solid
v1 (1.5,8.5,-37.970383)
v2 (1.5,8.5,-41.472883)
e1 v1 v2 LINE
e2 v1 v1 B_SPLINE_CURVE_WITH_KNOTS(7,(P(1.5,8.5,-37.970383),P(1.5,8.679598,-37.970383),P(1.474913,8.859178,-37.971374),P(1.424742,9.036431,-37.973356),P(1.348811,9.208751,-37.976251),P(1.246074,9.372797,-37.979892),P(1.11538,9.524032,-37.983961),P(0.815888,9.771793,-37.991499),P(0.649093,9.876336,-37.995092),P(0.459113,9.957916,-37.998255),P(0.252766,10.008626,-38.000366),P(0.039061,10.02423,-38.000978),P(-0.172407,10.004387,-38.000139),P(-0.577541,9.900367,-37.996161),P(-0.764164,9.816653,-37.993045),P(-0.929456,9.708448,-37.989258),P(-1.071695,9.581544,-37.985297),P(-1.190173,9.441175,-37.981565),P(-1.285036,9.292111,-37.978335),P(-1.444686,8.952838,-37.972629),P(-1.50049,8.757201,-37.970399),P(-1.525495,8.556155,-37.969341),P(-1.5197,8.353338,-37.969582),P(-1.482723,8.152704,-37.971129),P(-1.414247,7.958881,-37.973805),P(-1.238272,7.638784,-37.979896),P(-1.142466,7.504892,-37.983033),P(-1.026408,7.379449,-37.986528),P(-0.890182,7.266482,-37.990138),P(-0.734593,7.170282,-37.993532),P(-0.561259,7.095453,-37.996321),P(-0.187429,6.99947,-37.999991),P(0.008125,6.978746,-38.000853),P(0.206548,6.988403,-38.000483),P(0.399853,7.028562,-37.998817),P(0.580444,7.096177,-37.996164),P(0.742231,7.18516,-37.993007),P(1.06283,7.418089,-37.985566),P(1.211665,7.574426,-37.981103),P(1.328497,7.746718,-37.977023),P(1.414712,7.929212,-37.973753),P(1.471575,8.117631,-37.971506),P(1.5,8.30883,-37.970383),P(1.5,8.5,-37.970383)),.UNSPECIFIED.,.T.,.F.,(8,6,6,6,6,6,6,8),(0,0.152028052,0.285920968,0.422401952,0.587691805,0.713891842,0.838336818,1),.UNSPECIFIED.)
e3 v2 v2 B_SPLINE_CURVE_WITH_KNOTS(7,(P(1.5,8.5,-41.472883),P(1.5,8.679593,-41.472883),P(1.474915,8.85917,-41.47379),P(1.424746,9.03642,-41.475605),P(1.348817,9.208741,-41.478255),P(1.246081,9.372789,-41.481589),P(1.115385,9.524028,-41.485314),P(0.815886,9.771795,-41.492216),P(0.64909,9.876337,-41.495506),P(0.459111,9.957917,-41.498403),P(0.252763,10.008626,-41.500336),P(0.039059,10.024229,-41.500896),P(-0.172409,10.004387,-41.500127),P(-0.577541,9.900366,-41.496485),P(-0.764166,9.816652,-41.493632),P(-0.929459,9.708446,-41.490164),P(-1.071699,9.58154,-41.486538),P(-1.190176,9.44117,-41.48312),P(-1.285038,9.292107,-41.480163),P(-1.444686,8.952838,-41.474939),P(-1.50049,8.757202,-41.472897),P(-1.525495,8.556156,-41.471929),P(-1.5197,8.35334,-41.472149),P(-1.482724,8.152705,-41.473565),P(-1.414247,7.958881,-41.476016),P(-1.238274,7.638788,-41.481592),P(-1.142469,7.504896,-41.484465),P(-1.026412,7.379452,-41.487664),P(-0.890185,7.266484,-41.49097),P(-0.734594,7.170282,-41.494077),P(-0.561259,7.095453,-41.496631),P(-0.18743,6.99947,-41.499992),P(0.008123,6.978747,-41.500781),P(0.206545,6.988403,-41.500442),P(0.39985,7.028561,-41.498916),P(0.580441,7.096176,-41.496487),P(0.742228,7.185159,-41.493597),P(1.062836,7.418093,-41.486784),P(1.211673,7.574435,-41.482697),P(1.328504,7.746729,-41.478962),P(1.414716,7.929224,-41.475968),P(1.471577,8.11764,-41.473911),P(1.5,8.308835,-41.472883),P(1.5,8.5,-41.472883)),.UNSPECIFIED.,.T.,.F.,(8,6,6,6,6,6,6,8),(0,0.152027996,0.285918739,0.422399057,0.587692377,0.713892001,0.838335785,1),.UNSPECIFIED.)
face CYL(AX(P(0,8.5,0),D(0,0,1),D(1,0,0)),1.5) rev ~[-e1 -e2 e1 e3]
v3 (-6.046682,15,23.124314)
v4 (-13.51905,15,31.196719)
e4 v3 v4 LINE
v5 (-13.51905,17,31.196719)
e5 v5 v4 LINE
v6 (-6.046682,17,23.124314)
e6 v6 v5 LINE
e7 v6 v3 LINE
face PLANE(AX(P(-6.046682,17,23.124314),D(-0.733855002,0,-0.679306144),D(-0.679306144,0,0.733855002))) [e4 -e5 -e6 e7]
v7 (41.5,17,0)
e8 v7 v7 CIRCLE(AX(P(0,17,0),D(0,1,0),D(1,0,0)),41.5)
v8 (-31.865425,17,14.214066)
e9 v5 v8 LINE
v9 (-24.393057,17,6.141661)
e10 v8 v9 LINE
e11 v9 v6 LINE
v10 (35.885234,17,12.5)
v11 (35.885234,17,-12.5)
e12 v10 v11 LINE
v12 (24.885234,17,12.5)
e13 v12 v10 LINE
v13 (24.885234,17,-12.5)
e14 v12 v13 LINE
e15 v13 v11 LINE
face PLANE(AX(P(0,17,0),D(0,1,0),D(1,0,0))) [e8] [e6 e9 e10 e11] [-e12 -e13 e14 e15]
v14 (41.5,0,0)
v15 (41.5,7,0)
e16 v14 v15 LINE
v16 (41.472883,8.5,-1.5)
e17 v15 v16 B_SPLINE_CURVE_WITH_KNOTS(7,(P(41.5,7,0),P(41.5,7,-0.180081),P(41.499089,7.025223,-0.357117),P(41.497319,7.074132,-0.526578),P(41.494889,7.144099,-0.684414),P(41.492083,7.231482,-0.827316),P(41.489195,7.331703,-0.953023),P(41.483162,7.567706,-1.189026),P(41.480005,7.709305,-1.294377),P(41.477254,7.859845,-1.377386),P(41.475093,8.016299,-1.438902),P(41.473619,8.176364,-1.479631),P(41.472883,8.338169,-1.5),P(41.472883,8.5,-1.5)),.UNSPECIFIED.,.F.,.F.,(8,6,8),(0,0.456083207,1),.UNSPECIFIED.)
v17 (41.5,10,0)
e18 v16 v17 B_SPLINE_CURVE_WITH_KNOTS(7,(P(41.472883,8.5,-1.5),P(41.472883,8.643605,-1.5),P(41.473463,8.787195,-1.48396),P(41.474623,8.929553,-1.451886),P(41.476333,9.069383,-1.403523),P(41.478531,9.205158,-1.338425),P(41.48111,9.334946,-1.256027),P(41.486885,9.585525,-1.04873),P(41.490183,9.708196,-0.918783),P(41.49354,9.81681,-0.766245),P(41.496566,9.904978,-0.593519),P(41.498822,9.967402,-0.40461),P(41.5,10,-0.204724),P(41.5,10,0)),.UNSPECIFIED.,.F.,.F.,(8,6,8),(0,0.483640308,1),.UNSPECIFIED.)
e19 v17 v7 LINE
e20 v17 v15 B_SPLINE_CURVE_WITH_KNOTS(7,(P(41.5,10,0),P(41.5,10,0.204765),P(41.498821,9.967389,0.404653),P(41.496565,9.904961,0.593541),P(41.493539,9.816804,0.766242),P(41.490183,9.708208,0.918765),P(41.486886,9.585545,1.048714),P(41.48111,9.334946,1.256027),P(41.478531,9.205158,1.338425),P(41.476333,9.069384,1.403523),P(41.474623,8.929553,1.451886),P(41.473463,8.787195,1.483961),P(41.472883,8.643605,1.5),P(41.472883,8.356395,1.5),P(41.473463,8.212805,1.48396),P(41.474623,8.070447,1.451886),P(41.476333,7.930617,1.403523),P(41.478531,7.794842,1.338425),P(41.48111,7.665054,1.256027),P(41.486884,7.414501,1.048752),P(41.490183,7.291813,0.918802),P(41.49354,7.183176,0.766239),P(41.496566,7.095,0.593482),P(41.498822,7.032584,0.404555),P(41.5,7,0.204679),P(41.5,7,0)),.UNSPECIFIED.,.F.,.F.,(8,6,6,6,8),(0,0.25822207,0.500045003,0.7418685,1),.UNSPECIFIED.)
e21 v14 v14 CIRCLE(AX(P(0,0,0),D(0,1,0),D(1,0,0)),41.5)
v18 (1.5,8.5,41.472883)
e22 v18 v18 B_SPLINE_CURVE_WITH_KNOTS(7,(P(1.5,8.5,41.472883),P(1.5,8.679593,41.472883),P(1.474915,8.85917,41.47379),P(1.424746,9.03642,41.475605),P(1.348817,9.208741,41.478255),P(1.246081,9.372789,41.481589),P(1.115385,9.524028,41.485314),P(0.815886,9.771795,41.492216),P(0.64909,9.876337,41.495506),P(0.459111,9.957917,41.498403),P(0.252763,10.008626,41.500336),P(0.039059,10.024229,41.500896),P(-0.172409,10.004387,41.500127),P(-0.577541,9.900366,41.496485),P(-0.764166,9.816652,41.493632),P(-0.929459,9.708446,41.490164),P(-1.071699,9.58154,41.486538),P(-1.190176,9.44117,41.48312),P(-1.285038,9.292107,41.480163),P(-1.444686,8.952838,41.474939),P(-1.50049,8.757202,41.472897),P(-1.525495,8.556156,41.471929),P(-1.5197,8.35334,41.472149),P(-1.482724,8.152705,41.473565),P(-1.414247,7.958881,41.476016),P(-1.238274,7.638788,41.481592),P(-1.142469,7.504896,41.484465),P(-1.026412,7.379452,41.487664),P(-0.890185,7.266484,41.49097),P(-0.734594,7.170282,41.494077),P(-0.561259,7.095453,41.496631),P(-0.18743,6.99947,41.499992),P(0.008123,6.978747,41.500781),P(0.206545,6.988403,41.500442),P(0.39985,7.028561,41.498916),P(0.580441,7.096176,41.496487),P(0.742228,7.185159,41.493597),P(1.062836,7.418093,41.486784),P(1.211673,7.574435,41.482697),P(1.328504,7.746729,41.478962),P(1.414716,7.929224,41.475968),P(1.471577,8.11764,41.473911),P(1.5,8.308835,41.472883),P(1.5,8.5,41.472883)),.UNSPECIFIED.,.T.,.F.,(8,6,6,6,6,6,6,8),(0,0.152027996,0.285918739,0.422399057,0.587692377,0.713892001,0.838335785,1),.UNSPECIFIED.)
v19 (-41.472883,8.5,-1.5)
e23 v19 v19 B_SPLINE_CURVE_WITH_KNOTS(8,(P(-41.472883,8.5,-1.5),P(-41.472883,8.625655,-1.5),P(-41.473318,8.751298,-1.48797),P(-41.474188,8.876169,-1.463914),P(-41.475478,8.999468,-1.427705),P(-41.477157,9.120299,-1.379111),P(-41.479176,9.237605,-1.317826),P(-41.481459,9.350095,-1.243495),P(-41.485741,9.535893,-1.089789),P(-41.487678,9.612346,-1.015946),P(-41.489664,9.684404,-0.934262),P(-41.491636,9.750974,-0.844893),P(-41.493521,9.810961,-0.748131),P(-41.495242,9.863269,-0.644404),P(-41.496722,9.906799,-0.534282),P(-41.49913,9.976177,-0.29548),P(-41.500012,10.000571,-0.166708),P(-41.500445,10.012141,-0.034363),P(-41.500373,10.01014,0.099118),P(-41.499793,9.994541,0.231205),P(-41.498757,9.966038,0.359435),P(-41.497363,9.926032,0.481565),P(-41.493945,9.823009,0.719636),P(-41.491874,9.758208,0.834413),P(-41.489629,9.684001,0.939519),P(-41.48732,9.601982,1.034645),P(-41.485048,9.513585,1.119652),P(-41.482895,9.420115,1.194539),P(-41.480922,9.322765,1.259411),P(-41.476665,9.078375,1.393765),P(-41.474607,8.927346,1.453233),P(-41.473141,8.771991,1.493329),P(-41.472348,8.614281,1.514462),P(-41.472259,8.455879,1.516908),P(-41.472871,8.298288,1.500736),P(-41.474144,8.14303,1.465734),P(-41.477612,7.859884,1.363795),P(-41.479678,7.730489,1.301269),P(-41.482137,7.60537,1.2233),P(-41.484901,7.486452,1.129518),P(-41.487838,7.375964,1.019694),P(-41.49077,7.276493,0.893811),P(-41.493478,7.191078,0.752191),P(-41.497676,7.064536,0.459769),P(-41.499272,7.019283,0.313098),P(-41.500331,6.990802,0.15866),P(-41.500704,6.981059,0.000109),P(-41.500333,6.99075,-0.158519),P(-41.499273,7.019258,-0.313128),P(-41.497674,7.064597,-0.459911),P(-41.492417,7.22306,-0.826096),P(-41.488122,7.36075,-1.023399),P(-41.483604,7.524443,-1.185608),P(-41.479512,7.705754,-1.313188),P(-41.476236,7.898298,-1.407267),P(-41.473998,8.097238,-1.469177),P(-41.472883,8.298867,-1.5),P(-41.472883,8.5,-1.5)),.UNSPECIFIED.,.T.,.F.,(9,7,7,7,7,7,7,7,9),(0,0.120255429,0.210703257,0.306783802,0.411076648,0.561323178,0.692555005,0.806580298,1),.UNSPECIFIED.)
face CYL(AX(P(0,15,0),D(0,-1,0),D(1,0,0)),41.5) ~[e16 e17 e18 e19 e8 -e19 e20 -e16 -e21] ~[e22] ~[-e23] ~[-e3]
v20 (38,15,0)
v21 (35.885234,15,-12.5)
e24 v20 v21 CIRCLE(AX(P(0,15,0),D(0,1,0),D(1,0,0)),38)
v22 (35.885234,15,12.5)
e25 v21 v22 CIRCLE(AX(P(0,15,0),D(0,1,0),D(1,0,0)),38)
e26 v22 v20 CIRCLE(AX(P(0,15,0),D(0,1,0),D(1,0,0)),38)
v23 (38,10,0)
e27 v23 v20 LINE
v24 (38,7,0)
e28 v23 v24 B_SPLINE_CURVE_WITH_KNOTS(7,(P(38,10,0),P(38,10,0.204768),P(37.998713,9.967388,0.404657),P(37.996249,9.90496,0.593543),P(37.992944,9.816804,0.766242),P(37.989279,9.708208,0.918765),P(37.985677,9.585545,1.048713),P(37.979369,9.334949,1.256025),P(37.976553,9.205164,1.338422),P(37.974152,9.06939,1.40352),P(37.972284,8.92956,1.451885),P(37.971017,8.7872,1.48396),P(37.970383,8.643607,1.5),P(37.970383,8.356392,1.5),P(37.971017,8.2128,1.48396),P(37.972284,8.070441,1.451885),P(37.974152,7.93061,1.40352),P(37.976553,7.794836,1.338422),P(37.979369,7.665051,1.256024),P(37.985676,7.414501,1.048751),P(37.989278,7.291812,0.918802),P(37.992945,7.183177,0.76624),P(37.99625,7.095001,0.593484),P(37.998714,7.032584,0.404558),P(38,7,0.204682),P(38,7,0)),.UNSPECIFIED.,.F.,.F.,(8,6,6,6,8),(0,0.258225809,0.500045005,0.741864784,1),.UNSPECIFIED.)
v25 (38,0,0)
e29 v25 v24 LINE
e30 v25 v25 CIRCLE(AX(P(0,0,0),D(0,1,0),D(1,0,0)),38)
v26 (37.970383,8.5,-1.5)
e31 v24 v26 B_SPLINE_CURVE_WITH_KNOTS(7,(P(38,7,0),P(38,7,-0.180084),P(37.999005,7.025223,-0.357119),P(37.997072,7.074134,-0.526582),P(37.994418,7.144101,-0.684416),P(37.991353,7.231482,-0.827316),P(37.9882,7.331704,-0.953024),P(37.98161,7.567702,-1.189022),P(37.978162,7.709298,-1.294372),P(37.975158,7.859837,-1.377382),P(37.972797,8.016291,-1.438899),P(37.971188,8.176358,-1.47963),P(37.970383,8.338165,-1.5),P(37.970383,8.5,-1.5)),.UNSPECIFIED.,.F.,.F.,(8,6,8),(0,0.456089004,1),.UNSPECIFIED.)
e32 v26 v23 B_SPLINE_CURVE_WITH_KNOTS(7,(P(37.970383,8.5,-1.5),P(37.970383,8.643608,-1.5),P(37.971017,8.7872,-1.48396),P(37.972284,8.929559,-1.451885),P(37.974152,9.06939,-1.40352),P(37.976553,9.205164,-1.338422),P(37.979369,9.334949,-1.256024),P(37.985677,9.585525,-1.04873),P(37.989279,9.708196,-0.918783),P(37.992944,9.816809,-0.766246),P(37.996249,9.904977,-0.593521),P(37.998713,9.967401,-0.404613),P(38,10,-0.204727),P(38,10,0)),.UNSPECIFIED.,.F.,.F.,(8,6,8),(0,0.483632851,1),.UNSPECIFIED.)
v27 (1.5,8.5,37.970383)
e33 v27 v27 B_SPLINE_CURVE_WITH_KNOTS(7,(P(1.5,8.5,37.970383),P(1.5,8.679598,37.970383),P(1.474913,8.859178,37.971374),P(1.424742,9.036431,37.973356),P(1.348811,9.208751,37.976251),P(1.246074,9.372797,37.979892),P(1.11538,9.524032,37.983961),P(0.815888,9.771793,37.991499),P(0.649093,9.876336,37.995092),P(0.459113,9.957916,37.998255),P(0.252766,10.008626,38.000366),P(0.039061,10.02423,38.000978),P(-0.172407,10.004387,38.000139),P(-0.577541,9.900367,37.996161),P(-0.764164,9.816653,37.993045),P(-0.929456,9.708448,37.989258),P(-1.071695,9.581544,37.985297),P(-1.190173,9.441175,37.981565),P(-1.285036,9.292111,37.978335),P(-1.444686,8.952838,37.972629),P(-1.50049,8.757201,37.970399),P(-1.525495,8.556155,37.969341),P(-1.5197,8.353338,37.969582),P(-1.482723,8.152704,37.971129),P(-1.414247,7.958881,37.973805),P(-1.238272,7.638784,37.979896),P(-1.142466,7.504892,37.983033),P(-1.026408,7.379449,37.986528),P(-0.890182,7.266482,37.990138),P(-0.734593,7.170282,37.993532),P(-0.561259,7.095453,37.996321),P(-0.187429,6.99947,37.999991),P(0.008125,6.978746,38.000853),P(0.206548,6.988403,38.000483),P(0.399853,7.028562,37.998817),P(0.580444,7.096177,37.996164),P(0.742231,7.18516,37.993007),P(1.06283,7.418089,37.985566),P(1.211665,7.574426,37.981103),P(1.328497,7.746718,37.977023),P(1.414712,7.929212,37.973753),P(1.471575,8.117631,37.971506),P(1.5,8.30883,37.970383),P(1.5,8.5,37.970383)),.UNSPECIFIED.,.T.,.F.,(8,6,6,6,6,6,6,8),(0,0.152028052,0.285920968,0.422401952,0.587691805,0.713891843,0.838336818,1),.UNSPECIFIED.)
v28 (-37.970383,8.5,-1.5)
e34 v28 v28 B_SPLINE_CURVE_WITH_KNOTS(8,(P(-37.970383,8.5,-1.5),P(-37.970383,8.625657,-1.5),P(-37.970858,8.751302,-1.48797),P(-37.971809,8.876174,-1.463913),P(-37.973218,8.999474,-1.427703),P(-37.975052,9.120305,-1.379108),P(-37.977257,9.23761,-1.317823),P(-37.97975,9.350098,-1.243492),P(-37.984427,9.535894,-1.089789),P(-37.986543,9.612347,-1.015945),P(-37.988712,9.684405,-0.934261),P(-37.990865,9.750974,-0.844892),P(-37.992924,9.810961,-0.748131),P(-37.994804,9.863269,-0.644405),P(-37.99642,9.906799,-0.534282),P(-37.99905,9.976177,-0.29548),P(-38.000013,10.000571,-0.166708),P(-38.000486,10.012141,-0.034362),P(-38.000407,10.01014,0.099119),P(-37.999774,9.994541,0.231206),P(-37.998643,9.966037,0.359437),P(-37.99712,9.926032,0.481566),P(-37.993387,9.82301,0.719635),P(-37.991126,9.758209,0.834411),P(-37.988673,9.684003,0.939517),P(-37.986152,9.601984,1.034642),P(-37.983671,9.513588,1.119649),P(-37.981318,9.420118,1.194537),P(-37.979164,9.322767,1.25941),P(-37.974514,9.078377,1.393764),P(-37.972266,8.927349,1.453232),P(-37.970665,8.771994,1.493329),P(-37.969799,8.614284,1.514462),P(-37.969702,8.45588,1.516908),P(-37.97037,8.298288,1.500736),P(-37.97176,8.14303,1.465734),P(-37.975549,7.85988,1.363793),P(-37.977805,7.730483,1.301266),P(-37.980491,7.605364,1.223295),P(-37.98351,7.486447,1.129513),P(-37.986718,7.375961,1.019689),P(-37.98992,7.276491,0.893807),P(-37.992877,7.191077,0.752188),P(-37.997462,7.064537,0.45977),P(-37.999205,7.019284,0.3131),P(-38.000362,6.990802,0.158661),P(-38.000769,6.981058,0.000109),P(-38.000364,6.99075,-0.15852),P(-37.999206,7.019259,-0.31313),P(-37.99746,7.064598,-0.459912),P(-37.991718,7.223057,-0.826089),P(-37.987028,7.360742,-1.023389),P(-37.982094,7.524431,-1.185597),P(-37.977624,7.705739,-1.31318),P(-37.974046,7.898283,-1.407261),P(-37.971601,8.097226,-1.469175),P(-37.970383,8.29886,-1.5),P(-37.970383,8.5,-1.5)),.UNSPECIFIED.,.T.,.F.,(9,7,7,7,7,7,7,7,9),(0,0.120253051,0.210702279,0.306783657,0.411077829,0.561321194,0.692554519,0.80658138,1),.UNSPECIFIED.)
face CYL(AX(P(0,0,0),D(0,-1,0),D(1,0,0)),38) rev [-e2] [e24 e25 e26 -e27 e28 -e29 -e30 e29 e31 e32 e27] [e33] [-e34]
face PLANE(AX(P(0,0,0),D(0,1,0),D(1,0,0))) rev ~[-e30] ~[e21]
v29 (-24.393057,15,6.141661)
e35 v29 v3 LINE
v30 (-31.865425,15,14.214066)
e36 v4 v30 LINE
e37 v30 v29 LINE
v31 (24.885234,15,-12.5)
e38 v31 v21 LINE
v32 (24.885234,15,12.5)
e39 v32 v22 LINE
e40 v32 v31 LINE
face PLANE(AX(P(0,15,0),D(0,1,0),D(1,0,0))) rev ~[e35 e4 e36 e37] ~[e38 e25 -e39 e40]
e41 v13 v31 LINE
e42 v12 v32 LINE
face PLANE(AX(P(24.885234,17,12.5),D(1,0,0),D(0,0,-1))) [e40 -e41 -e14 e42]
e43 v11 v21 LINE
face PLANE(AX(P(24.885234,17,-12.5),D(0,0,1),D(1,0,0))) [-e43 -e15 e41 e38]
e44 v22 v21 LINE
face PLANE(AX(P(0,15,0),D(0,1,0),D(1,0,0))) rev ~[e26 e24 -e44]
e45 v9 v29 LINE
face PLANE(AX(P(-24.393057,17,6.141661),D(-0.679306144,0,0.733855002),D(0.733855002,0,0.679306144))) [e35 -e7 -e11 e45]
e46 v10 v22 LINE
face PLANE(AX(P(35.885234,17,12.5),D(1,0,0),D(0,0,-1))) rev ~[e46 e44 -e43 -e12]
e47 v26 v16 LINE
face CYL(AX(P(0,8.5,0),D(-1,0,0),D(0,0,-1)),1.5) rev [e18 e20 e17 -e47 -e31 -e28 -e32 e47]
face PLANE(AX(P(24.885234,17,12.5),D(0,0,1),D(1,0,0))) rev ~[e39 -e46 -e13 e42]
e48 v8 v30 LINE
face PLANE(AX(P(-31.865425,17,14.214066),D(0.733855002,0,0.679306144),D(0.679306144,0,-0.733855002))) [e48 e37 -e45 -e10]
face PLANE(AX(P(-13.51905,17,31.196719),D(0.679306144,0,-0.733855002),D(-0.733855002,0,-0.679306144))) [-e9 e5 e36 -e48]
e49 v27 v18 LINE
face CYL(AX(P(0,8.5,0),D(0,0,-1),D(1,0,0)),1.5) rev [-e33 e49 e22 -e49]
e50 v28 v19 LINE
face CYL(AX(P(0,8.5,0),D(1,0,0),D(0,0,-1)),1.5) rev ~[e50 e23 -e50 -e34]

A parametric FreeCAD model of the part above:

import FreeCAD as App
import Part
import Sketcher

V = App.Vector
Q = App.Units.Quantity


def add_polygon(sketch, points):
    """Adds a closed chain of lines whose ends are joined by coincident constraints."""
    first, n = sketch.GeometryCount, len(points)
    for a, b in zip(points, points[1:] + points[:1]):
        sketch.addGeometry(Part.LineSegment(App.Vector(*a, 0), App.Vector(*b, 0)), False)
    for i in range(n):
        sketch.addConstraint(Sketcher.Constraint("Coincident", first + i, 2, first + (i + 1) % n, 1))

doc = App.newDocument("Part")
body = doc.addObject("PartDesign::Body", "Body")

sketch1 = body.newObject("Sketcher::SketchObject", "Sketch")
sketch1.AttachmentSupport = (doc.getObject("XZ_Plane"), [""])
sketch1.MapMode = "FlatFace"
sketch1.addGeometry([
    Part.Circle(V(0, 0, 0), V(0, 0, 1), 42),
    Part.Circle(V(0, 0, 0), V(0, 0, 1), 38),
], False)
sketch1.addConstraint([
    Sketcher.Constraint("Coincident", 0, 3, -1, 1),
    Sketcher.Constraint("Coincident", 1, 3, -1, 1),
    Sketcher.Constraint("Diameter", 0, Q("83 mm")),
    Sketcher.Constraint("Diameter", 1, Q("76 mm")),
])
pad1 = body.newObject("PartDesign::Pad", "Pad")
pad1.Profile = sketch1
pad1.Length = 15
pad1.Reversed = True

sketch2 = body.newObject("Sketcher::SketchObject", "Sketch001")
sketch2.AttachmentSupport = (doc.getObject("XZ_Plane"), [""])
sketch2.MapMode = "FlatFace"
sketch2.AttachmentOffset = App.Placement(V(0, 0, -15), App.Rotation())
sketch2.addGeometry(Part.Circle(V(0, 0, 0), V(0, 0, 1), 42), False)
sketch2.addConstraint([
    Sketcher.Constraint("Coincident", 0, 3, -1, 1),
    Sketcher.Constraint("Diameter", 0, Q("83 mm")),
])
pad2 = body.newObject("PartDesign::Pad", "Pad001")
pad2.Profile = sketch2
pad2.Length = 2
pad2.Reversed = True

sketch3 = body.newObject("Sketcher::SketchObject", "Sketch002")
sketch3.AttachmentSupport = (doc.getObject("XZ_Plane"), [""])
sketch3.MapMode = "FlatFace"
sketch3.AttachmentOffset = App.Placement(V(0, 0, -17), App.Rotation())
add_polygon(sketch3, [(-14, 31), (-6, 23), (-24, 6), (-32, 14)])
add_polygon(sketch3, [(25, -12), (25, 12), (36, 12), (36, -12)])
sketch3.addConstraint([
    Sketcher.Constraint("Vertical", 4),
    Sketcher.Constraint("Horizontal", 5),
    Sketcher.Constraint("Vertical", 6),
    Sketcher.Constraint("Horizontal", 7),
    Sketcher.Constraint("Perpendicular", 0, 1),
    Sketcher.Constraint("Perpendicular", 1, 2),
    Sketcher.Constraint("Perpendicular", 2, 3),
    Sketcher.Constraint("DistanceX", 5, 1, 5, 2, Q("11 mm")),
    Sketcher.Constraint("DistanceY", 4, 1, 4, 2, Q("25 mm")),
    Sketcher.Constraint("Distance", 0, Q("11 mm")),
    Sketcher.Constraint("Distance", 1, Q("25 mm")),
    Sketcher.Constraint("DistanceY", -1, 1, 4, 2, Q("12.5 mm")),
    Sketcher.Constraint("DistanceY", -1, 1, 1, 2, Q("6.141661 mm")),
    Sketcher.Constraint("DistanceX", 3, 2, -1, 1, Q("13.51905 mm")),
    Sketcher.Constraint("DistanceY", -1, 1, 3, 2, Q("31.196719 mm")),
    Sketcher.Constraint("DistanceX", 1, 2, 4, 2, Q("49.278291 mm")),
])
pocket1 = body.newObject("PartDesign::Pocket", "Pocket")
pocket1.Profile = sketch3
pocket1.Length = 3
pocket1.Reversed = True

sketch4 = body.newObject("Sketcher::SketchObject", "Sketch003")
sketch4.AttachmentSupport = (doc.getObject("XY_Plane"), [""])
sketch4.MapMode = "FlatFace"
sketch4.addGeometry(Part.Circle(V(0, 8.5, 0), V(0, 0, 1), 1.5), False)
sketch4.addConstraint([
    Sketcher.Constraint("PointOnObject", 0, 3, -2),
    Sketcher.Constraint("Diameter", 0, Q("3 mm")),
    Sketcher.Constraint("DistanceY", -1, 1, 0, 3, Q("8.5 mm")),
])
pocket2 = body.newObject("PartDesign::Pocket", "Pocket001")
pocket2.Profile = sketch4
pocket2.Type = "ThroughAll"
pocket2.Midplane = True

sketch5 = body.newObject("Sketcher::SketchObject", "Sketch004")
sketch5.AttachmentSupport = (doc.getObject("YZ_Plane"), [""])
sketch5.MapMode = "FlatFace"
sketch5.addGeometry(Part.Circle(V(8.5, 0, 0), V(0, 0, 1), 1.5), False)
sketch5.addConstraint([
    Sketcher.Constraint("PointOnObject", 0, 3, -1),
    Sketcher.Constraint("Diameter", 0, Q("3 mm")),
    Sketcher.Constraint("DistanceX", -1, 1, 0, 3, Q("8.5 mm")),
])
pocket3 = body.newObject("PartDesign::Pocket", "Pocket002")
pocket3.Profile = sketch5
pocket3.Type = "ThroughAll"
pocket3.Midplane = True

doc.recompute()
